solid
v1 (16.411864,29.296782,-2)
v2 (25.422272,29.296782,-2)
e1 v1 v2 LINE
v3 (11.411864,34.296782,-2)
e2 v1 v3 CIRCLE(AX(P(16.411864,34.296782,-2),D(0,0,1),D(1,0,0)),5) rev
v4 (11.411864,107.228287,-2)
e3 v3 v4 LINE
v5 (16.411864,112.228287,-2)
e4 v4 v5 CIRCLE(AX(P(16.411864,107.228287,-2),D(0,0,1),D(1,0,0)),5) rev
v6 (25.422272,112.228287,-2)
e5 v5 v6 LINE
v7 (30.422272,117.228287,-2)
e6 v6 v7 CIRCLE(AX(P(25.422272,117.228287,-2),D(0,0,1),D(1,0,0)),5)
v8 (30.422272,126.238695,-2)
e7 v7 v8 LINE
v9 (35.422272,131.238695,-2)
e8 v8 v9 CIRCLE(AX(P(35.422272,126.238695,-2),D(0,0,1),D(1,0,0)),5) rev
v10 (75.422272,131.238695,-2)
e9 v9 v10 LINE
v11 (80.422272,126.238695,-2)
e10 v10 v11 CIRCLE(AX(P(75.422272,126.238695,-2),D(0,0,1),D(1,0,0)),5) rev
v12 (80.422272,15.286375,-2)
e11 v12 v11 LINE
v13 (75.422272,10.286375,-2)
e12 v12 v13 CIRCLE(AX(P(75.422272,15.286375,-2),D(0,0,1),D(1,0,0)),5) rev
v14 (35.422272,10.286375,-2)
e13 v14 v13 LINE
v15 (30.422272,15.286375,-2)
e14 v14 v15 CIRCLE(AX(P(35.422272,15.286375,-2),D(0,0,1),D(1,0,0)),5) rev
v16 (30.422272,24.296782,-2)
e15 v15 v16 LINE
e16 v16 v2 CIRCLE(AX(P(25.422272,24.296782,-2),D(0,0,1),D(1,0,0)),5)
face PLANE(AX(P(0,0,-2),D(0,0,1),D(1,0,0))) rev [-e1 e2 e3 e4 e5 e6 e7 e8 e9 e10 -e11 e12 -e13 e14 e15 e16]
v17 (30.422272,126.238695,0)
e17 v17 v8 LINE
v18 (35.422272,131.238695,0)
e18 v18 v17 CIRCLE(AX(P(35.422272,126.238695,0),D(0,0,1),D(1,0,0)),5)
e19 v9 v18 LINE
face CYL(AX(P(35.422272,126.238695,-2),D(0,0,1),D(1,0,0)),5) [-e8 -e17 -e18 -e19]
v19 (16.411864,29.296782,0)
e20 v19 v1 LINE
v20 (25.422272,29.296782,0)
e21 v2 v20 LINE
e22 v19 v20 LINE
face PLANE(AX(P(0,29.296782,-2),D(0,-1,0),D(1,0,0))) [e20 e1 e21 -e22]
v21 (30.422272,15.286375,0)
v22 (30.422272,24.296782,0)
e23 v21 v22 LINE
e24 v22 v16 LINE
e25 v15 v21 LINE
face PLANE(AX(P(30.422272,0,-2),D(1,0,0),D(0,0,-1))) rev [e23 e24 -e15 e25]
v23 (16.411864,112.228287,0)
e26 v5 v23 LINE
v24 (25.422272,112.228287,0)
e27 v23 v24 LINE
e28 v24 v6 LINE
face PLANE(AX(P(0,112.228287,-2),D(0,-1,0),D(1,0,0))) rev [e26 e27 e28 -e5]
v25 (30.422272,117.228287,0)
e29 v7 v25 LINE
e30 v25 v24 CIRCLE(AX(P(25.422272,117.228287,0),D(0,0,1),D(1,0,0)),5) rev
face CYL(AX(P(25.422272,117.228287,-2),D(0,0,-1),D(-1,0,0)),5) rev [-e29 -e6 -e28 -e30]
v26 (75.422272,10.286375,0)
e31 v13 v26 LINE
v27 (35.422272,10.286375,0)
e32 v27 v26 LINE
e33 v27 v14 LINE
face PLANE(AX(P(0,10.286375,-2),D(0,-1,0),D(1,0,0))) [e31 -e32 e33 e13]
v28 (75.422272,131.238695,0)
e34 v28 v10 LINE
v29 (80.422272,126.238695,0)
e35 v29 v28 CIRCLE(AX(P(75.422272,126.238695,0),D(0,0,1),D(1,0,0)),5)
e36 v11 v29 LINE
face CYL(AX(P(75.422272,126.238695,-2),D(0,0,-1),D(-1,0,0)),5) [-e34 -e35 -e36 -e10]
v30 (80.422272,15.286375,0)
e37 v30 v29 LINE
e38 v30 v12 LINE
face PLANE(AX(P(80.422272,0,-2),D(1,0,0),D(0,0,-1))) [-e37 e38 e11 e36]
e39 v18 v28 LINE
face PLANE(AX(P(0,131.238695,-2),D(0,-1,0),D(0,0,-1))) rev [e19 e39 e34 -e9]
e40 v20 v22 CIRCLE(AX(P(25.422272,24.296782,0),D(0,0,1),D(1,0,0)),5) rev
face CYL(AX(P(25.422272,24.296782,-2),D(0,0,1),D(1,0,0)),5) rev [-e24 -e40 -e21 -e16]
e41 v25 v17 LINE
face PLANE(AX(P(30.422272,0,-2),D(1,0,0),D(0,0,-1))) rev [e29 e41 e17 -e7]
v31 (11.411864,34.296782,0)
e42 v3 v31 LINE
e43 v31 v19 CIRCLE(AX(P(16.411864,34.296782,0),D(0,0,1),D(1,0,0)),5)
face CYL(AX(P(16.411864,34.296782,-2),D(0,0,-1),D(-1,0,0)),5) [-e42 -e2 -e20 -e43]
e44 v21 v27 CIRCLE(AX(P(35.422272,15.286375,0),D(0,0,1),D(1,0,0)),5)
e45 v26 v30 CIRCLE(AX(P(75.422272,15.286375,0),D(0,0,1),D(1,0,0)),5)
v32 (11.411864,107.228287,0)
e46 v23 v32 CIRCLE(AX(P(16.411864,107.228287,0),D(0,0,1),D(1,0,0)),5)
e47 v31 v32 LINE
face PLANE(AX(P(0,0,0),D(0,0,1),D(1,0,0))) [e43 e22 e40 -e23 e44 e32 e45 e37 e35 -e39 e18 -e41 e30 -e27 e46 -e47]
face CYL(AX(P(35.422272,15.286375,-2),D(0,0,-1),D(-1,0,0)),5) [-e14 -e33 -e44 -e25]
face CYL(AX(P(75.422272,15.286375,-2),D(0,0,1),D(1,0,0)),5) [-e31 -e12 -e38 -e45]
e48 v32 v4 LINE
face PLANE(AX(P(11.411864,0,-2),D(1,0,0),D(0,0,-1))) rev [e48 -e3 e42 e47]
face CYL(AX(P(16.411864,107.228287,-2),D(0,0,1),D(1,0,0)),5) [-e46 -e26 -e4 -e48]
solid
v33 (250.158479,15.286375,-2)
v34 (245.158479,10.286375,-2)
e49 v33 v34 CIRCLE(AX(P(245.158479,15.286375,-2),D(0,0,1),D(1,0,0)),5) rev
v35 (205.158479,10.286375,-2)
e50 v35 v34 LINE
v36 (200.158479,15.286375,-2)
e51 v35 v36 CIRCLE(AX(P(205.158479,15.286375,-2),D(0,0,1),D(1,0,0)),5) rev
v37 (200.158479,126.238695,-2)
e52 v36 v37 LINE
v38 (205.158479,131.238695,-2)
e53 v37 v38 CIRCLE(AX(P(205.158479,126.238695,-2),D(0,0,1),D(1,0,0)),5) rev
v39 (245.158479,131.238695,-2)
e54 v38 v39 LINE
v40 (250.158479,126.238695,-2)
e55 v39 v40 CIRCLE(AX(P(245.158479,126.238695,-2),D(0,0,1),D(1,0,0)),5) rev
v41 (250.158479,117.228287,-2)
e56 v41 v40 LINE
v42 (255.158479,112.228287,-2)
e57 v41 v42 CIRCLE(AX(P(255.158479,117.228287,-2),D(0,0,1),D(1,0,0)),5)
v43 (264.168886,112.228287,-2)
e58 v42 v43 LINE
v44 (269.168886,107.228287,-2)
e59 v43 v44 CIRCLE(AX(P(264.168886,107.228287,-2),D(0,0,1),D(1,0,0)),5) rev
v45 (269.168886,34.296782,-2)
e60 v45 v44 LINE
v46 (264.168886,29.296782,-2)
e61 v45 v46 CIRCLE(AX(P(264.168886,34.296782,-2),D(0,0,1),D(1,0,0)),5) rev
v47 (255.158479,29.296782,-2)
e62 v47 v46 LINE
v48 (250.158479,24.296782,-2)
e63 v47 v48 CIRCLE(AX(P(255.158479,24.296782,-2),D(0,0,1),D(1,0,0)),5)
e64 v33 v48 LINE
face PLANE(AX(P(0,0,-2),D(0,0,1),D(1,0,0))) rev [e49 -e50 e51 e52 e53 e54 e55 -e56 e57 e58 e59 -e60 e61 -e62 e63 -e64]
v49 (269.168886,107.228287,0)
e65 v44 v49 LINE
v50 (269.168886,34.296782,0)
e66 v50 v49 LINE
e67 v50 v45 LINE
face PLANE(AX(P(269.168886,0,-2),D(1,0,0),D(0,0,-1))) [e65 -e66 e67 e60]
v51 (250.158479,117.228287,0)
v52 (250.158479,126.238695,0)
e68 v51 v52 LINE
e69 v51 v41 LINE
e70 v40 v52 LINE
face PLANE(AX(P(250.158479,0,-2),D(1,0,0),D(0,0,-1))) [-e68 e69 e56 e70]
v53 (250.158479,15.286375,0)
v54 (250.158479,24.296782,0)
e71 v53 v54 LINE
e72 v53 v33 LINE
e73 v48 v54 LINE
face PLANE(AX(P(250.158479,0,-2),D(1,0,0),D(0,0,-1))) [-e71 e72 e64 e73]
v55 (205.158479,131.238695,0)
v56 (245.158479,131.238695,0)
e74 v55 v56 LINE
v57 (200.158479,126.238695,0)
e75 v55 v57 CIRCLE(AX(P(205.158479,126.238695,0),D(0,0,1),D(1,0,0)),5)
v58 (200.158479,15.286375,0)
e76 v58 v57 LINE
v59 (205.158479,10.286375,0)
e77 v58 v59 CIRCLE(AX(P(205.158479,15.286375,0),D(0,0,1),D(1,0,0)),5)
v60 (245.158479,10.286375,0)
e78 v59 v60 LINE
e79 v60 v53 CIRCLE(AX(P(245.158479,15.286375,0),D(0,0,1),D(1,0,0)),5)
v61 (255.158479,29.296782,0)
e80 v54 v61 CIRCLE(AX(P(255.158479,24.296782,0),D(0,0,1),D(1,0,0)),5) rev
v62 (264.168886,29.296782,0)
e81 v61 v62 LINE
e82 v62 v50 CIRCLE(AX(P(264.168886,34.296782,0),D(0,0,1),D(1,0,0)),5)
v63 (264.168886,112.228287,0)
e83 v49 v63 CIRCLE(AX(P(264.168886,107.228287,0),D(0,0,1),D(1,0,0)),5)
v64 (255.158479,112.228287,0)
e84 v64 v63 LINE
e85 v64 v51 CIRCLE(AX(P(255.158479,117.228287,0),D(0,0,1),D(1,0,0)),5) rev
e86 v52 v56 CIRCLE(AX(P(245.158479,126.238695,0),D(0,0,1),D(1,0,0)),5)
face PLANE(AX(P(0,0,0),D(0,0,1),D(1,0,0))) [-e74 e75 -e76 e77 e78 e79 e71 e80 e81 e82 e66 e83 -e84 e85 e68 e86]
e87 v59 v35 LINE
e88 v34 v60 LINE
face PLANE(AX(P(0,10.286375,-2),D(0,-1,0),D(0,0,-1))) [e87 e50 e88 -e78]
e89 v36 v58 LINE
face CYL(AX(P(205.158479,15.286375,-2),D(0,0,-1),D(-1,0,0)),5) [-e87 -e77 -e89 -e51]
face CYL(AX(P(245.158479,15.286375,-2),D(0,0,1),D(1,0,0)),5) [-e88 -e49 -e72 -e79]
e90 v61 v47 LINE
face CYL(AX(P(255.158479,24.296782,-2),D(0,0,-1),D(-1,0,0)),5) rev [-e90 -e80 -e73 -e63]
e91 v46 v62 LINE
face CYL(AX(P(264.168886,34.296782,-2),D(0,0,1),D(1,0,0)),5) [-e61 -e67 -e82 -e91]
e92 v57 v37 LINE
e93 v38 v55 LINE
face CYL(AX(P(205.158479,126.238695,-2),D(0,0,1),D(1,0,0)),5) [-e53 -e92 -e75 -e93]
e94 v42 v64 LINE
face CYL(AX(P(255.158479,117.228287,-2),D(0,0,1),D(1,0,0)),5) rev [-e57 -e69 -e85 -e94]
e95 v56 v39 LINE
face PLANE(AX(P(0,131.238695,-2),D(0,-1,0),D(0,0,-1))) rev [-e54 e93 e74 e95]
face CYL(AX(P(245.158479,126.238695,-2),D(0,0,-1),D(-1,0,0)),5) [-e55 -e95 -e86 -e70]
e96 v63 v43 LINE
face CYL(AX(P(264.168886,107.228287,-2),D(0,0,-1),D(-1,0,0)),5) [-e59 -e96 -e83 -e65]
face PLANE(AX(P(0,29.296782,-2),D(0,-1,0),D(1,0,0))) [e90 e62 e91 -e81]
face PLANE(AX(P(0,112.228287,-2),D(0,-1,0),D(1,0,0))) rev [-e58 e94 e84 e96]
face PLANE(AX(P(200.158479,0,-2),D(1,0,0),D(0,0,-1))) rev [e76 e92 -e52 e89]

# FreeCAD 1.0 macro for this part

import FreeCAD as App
import Part
import Sketcher

V = App.Vector
Q = App.Units.Quantity


def edges_at(feature, points):
    """Names of the edges that pass closest to the given points."""
    edges = feature.Shape.Edges
    near = lambda p: min(range(len(edges)), key=lambda i: edges[i].distToShape(Part.Vertex(*p))[0])
    return sorted({f"Edge{near(p) + 1}" for p in points})


def add_polygon(sketch, points):
    """Adds a closed chain of lines whose ends are joined by coincident constraints."""
    first, n = sketch.GeometryCount, len(points)
    for a, b in zip(points, points[1:] + points[:1]):
        sketch.addGeometry(Part.LineSegment(App.Vector(*a, 0), App.Vector(*b, 0)), False)
    for i in range(n):
        sketch.addConstraint(Sketcher.Constraint("Coincident", first + i, 2, first + (i + 1) % n, 1))

doc = App.newDocument("Part")
body = doc.addObject("PartDesign::Body", "Body")
body.AllowCompound = True

# Sketch on XY plane
sketch1 = doc.addObject("Sketcher::SketchObject", "Sketch")
body.addObject(sketch1)
sketch1.AttachmentSupport = (doc.XY_Plane, [""])
sketch1.MapMode = "FlatFace"
add_polygon(sketch1, [(11.411864, 112.228287), (11.411864, 29.296782), (30.422272, 29.296782), (30.422272, 10.286375), (80.422272, 10.286375), (80.422272, 131.238695), (30.422272, 131.238695), (30.422272, 112.228287)])  # lines 0-7
add_polygon(sketch1, [(250.158479, 10.286375), (250.158479, 29.296782), (269.168886, 29.296782), (269.168886, 112.228287), (250.158479, 112.228287), (250.158479, 131.238695), (200.158479, 131.238695), (200.158479, 10.286375)])  # lines 8-15
sketch1.addConstraint([
    Sketcher.Constraint("Vertical", 0),
    Sketcher.Constraint("Horizontal", 1),
    Sketcher.Constraint("Vertical", 2),
    Sketcher.Constraint("Horizontal", 3),
    Sketcher.Constraint("Vertical", 4),
    Sketcher.Constraint("Horizontal", 5),
    Sketcher.Constraint("Vertical", 6),
    Sketcher.Constraint("Horizontal", 7),
    Sketcher.Constraint("Vertical", 8),
    Sketcher.Constraint("Horizontal", 9),
    Sketcher.Constraint("Vertical", 10),
    Sketcher.Constraint("Horizontal", 11),
    Sketcher.Constraint("Vertical", 12),
    Sketcher.Constraint("Horizontal", 13),
    Sketcher.Constraint("Vertical", 14),
    Sketcher.Constraint("Horizontal", 15),
    Sketcher.Constraint("Horizontal", 1, 2, 8, 2),
    Sketcher.Constraint("Horizontal", 7, 2, 10, 2),
    Sketcher.Constraint("Horizontal", 5, 2, 12, 2),
    Sketcher.Constraint("Horizontal", 3, 2, 14, 2),
    Sketcher.Constraint("Vertical", 2, 2, 5, 2),
    Sketcher.Constraint("Vertical", 8, 2, 11, 2),
    Sketcher.Constraint("Equal", 7, 9),
    Sketcher.Constraint("Equal", 5, 13),
    Sketcher.Constraint("Equal", 11, 2),
    Sketcher.Constraint("Equal", 2, 6),
    Sketcher.Constraint("DistanceX", 3, 1, 3, 2, Q("50 mm")),
    Sketcher.Constraint("DistanceY", 4, 1, 4, 2, Q("120.95232 mm")),
    Sketcher.Constraint("DistanceX", 1, 1, 1, 2, Q("19.010408 mm")),
    Sketcher.Constraint("DistanceX", -1, 1, 8, 2, Q("250.158479 mm")),
    Sketcher.Constraint("DistanceX", -1, 1, 0, 2, Q("11.411864 mm")),
    Sketcher.Constraint("DistanceY", -1, 1, 0, 2, Q("29.296782 mm")),
])
pad1 = doc.addObject("PartDesign::Pad", "Pad")
body.addObject(pad1)
pad1.Profile = sketch1
pad1.Length = 2
pad1.Reversed = True
doc.recompute()

fillet = doc.addObject("PartDesign::Fillet", "Fillet")
body.addObject(fillet)
fillet.Base = (pad1, edges_at(pad1, [
    (30.422, 112.228, -1),
    (30.422, 131.239, -1),
    (80.422, 131.239, -1),
    (80.422, 10.286, -1),
    (30.422, 10.286, -1),
    (30.422, 29.297, -1),
    (11.412, 29.297, -1),
    (11.412, 112.228, -1),
]))
fillet.Radius = 5
doc.recompute()

fillet2 = doc.addObject("PartDesign::Fillet", "Fillet001")
body.addObject(fillet2)
fillet2.Base = (fillet, edges_at(fillet, [
    (200.158, 10.286, -1),
    (200.158, 131.239, -1),
    (250.158, 131.239, -1),
    (250.158, 112.228, -1),
    (269.169, 112.228, -1),
    (269.169, 29.297, -1),
    (250.158, 29.297, -1),
    (250.158, 10.286, -1),
]))
fillet2.Radius = 5

doc.recompute()
